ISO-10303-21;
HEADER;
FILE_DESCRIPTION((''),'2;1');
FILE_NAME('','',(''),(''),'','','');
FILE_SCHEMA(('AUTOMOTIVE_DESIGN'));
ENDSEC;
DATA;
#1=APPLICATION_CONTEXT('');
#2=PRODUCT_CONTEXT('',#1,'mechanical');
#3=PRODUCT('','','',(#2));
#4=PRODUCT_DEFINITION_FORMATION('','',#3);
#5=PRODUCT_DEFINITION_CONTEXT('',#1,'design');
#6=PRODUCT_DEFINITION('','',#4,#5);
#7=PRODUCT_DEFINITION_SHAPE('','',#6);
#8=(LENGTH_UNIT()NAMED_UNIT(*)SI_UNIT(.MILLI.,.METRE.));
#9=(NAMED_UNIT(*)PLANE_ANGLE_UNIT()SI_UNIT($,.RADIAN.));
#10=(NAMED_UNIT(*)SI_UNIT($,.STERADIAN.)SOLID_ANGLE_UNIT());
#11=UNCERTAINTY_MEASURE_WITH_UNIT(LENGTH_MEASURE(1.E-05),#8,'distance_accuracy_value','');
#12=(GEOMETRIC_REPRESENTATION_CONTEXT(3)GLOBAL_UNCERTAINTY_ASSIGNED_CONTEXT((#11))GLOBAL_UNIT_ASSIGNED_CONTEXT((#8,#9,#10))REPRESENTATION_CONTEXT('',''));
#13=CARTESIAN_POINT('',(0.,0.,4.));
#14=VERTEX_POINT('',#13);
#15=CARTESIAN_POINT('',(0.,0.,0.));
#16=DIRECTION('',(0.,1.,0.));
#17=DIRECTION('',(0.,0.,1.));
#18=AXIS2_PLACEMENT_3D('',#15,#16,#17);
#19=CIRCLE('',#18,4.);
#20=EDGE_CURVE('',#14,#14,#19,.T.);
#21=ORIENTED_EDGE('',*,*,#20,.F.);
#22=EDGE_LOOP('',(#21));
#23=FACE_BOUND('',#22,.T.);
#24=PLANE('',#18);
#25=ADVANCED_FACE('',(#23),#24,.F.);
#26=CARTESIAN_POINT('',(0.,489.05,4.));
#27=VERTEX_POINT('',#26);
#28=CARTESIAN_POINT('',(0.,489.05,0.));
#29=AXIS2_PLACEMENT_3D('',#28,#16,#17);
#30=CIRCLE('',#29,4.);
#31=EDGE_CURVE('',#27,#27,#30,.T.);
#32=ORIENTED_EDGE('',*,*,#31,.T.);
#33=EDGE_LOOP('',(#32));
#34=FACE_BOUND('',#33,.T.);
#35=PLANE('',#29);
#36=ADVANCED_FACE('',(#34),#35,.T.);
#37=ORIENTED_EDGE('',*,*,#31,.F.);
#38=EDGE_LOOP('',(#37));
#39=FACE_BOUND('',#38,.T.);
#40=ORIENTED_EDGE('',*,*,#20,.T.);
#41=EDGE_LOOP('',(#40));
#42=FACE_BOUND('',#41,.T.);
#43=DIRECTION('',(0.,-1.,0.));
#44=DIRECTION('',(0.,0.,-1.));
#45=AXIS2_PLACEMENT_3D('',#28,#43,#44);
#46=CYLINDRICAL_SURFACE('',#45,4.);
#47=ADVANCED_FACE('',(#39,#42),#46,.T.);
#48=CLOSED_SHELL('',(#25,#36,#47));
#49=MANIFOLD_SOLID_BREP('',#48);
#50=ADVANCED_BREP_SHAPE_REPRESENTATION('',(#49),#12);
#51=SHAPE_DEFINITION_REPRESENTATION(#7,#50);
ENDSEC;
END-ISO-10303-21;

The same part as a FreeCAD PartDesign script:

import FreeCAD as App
import Part
import Sketcher

V = App.Vector

doc = App.newDocument("Part")
params = doc.addObject("Spreadsheet::Sheet", "Params")
for row, (alias, value) in enumerate([
    ("sketch1_diameter", "8 mm"),
    ("pad1_length", "489.05 mm"),
], start=1):
    params.set(f"A{row}", alias)
    params.set(f"B{row}", "=" + value)
    params.setAlias(f"B{row}", alias)

body = doc.addObject("PartDesign::Body", "Body")

# Sketch on XZ plane
sketch1 = doc.addObject("Sketcher::SketchObject", "Sketch")
body.addObject(sketch1)
sketch1.AttachmentSupport = (doc.XZ_Plane, [""])
sketch1.MapMode = "FlatFace"
sketch1.addGeometry(Part.Circle(V(0, 0, 0), V(0, 0, 1), 4), False)
sketch1.addConstraint(Sketcher.Constraint("Coincident", 0, 3, -1, 1))
sketch1.addConstraint(Sketcher.Constraint("Diameter", 0, 8.0))
sketch1.setExpression("Constraints[1]", "Params.sketch1_diameter")
pad1 = doc.addObject("PartDesign::Pad", "Pad")
body.addObject(pad1)
pad1.Profile = sketch1
pad1.setExpression("Length", "Params.pad1_length")
pad1.Reversed = True

doc.recompute()
